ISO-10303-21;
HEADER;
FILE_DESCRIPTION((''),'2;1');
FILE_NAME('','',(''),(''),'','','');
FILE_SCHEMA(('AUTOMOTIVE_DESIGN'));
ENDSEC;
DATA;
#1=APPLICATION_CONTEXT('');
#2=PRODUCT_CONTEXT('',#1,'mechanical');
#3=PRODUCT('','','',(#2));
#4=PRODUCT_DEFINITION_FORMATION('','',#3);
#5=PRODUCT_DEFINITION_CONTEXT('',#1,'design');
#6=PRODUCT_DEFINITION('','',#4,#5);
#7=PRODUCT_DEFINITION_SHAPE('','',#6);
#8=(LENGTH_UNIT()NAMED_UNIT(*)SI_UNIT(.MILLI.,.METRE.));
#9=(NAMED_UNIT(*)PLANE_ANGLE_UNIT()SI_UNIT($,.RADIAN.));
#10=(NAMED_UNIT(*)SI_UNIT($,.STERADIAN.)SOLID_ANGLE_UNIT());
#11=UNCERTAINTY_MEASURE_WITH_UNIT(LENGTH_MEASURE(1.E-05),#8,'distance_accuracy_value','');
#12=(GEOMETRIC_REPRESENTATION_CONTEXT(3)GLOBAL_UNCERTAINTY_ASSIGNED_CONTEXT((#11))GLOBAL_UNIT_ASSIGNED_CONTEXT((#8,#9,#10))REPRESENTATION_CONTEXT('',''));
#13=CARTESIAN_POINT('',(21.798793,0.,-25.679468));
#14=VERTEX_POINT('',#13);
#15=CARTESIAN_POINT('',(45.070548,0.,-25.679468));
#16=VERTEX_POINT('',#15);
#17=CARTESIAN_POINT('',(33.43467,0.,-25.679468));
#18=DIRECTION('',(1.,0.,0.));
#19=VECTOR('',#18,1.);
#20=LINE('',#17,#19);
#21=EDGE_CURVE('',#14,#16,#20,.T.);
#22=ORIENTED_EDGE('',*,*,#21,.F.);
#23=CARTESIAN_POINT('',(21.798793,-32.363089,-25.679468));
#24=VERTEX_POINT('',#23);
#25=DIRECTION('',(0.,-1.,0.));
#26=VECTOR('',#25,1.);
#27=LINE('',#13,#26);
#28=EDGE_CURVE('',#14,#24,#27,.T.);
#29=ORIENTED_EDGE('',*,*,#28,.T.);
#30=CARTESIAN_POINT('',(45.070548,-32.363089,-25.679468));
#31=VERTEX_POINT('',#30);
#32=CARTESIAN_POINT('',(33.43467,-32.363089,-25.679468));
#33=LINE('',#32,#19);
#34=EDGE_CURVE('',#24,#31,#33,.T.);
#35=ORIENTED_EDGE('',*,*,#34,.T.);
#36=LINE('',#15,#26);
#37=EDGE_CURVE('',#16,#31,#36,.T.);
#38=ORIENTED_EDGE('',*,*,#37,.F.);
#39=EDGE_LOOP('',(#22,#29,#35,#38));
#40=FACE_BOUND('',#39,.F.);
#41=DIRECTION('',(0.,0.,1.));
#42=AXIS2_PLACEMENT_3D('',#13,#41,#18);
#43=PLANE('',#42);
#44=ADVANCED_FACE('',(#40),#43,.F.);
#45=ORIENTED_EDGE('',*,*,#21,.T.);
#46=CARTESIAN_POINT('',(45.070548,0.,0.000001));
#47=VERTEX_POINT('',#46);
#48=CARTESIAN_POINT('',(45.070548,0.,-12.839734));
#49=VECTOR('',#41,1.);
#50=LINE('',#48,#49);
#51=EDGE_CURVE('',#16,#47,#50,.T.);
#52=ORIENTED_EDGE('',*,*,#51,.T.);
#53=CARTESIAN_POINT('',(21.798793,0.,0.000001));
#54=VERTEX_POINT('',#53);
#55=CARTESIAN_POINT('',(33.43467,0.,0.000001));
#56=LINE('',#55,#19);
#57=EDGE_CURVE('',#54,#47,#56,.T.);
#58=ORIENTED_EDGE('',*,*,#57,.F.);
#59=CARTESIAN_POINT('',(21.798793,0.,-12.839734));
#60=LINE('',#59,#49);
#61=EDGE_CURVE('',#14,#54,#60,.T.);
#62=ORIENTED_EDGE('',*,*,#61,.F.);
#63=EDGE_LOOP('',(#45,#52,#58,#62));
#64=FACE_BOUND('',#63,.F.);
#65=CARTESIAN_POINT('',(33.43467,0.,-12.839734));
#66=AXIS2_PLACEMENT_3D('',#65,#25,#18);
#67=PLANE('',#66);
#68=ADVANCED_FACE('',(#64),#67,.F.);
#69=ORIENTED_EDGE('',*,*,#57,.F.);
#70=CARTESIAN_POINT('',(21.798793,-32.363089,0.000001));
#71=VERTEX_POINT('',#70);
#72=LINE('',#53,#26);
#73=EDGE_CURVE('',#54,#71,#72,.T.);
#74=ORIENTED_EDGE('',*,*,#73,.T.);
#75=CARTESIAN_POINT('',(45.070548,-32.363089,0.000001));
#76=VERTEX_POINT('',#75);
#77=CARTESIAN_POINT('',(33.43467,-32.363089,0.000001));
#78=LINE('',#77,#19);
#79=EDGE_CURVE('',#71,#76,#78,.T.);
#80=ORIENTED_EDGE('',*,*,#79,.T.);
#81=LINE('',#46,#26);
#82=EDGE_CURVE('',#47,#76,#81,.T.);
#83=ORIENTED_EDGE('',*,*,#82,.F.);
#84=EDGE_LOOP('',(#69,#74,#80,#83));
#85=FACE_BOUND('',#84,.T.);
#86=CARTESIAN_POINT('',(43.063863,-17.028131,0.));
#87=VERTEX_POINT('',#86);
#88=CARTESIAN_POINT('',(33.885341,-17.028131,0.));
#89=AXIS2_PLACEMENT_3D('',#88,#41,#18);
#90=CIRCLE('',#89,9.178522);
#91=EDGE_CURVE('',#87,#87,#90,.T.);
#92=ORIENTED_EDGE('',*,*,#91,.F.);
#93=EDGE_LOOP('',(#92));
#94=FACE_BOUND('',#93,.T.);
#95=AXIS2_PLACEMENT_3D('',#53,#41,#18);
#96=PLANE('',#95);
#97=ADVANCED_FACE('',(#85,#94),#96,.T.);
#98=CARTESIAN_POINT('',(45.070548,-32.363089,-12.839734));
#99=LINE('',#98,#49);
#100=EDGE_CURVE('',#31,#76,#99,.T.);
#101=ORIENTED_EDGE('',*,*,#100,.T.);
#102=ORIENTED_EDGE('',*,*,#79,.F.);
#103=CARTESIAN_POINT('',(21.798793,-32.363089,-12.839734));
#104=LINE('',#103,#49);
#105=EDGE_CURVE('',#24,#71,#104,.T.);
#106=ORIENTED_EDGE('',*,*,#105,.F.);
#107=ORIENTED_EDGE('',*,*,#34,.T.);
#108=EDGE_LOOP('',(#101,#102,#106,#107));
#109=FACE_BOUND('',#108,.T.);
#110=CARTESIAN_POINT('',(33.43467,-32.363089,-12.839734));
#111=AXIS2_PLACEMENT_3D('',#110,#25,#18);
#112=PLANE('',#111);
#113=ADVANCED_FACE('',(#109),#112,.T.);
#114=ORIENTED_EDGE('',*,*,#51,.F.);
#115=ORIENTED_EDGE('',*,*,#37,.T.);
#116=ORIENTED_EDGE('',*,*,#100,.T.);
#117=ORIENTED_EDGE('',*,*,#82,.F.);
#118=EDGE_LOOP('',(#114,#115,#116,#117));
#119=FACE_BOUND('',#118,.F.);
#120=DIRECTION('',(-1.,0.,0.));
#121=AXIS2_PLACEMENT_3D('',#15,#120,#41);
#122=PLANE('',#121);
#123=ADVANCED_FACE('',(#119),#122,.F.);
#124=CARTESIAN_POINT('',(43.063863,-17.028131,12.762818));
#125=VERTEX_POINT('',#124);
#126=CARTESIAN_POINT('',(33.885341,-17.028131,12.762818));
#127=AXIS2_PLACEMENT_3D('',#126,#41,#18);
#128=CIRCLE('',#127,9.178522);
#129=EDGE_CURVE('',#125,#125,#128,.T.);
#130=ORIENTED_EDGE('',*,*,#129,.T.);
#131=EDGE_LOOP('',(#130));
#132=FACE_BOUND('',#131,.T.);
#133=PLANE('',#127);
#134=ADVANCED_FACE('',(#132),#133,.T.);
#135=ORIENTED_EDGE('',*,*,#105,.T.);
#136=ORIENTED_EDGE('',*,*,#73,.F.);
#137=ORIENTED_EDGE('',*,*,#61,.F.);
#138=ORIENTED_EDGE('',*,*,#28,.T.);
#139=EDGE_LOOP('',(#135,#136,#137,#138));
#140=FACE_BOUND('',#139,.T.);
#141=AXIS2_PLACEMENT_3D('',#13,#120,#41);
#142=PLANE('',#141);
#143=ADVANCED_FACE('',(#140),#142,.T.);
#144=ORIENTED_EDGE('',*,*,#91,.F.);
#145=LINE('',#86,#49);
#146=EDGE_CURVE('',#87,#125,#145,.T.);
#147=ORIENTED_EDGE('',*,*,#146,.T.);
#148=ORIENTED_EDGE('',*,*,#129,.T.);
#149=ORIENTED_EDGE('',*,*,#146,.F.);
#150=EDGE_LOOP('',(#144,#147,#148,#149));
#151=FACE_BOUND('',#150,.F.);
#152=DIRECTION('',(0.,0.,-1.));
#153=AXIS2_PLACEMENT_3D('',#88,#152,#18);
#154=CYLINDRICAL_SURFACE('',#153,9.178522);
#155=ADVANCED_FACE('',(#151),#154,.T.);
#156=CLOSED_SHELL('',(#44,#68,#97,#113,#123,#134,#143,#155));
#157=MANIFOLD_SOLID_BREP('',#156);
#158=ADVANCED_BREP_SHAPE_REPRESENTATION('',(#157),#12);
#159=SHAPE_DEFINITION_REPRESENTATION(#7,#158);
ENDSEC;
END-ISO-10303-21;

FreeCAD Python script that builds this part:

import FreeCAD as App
import Part
import Sketcher

V = App.Vector
Q = App.Units.Quantity


def add_polygon(sketch, points):
    """Adds a closed chain of lines whose ends are joined by coincident constraints."""
    first, n = sketch.GeometryCount, len(points)
    for a, b in zip(points, points[1:] + points[:1]):
        sketch.addGeometry(Part.LineSegment(App.Vector(*a, 0), App.Vector(*b, 0)), False)
    for i in range(n):
        sketch.addConstraint(Sketcher.Constraint("Coincident", first + i, 2, first + (i + 1) % n, 1))

doc = App.newDocument("Part")
body = doc.addObject("PartDesign::Body", "Body")

# Sketch on XZ plane
sketch1 = body.newObject("Sketcher::SketchObject", "Sketch")
sketch1.AttachmentSupport = (doc.getObject("XZ_Plane"), [""])
sketch1.MapMode = "FlatFace"
add_polygon(sketch1, [(21.798793, 0), (21.798793, -25.679468), (45.070548, -25.679468), (45.070548, 0)])  # lines 0-3
sketch1.addConstraint(Sketcher.Constraint("Vertical", 0))
sketch1.addConstraint(Sketcher.Constraint("Horizontal", 1))
sketch1.addConstraint(Sketcher.Constraint("Vertical", 2))
sketch1.addConstraint(Sketcher.Constraint("Horizontal", 3))
sketch1.addConstraint(Sketcher.Constraint("PointOnObject", 2, 2, -1))
sketch1.addConstraint(Sketcher.Constraint("DistanceY", 0, 2, 0, 1, Q("25.679469 mm")))
sketch1.addConstraint(Sketcher.Constraint("DistanceX", 1, 1, 1, 2, Q("23.271755 mm")))
sketch1.addConstraint(Sketcher.Constraint("DistanceX", -1, 1, 0, 2, Q("21.798793 mm")))
pad1 = body.newObject("PartDesign::Pad", "Pad")
pad1.Profile = sketch1
pad1.Length = 32.363089

# Sketch on XY plane
sketch2 = body.newObject("Sketcher::SketchObject", "Sketch001")
sketch2.AttachmentSupport = (doc.getObject("XY_Plane"), [""])
sketch2.MapMode = "FlatFace"
sketch2.addGeometry(Part.Circle(V(33.885341, -17.028131, 0), V(0, 0, 1), 9.178522), False)
sketch2.addConstraint(Sketcher.Constraint("Diameter", 0, Q("18.357044 mm")))
sketch2.addConstraint(Sketcher.Constraint("DistanceX", -1, 1, 0, 3, Q("33.885341 mm")))
sketch2.addConstraint(Sketcher.Constraint("DistanceY", 0, 3, -1, 1, Q("17.028131 mm")))
pad2 = body.newObject("PartDesign::Pad", "Pad001")
pad2.Profile = sketch2
pad2.Length = 12.762818

doc.recompute()
